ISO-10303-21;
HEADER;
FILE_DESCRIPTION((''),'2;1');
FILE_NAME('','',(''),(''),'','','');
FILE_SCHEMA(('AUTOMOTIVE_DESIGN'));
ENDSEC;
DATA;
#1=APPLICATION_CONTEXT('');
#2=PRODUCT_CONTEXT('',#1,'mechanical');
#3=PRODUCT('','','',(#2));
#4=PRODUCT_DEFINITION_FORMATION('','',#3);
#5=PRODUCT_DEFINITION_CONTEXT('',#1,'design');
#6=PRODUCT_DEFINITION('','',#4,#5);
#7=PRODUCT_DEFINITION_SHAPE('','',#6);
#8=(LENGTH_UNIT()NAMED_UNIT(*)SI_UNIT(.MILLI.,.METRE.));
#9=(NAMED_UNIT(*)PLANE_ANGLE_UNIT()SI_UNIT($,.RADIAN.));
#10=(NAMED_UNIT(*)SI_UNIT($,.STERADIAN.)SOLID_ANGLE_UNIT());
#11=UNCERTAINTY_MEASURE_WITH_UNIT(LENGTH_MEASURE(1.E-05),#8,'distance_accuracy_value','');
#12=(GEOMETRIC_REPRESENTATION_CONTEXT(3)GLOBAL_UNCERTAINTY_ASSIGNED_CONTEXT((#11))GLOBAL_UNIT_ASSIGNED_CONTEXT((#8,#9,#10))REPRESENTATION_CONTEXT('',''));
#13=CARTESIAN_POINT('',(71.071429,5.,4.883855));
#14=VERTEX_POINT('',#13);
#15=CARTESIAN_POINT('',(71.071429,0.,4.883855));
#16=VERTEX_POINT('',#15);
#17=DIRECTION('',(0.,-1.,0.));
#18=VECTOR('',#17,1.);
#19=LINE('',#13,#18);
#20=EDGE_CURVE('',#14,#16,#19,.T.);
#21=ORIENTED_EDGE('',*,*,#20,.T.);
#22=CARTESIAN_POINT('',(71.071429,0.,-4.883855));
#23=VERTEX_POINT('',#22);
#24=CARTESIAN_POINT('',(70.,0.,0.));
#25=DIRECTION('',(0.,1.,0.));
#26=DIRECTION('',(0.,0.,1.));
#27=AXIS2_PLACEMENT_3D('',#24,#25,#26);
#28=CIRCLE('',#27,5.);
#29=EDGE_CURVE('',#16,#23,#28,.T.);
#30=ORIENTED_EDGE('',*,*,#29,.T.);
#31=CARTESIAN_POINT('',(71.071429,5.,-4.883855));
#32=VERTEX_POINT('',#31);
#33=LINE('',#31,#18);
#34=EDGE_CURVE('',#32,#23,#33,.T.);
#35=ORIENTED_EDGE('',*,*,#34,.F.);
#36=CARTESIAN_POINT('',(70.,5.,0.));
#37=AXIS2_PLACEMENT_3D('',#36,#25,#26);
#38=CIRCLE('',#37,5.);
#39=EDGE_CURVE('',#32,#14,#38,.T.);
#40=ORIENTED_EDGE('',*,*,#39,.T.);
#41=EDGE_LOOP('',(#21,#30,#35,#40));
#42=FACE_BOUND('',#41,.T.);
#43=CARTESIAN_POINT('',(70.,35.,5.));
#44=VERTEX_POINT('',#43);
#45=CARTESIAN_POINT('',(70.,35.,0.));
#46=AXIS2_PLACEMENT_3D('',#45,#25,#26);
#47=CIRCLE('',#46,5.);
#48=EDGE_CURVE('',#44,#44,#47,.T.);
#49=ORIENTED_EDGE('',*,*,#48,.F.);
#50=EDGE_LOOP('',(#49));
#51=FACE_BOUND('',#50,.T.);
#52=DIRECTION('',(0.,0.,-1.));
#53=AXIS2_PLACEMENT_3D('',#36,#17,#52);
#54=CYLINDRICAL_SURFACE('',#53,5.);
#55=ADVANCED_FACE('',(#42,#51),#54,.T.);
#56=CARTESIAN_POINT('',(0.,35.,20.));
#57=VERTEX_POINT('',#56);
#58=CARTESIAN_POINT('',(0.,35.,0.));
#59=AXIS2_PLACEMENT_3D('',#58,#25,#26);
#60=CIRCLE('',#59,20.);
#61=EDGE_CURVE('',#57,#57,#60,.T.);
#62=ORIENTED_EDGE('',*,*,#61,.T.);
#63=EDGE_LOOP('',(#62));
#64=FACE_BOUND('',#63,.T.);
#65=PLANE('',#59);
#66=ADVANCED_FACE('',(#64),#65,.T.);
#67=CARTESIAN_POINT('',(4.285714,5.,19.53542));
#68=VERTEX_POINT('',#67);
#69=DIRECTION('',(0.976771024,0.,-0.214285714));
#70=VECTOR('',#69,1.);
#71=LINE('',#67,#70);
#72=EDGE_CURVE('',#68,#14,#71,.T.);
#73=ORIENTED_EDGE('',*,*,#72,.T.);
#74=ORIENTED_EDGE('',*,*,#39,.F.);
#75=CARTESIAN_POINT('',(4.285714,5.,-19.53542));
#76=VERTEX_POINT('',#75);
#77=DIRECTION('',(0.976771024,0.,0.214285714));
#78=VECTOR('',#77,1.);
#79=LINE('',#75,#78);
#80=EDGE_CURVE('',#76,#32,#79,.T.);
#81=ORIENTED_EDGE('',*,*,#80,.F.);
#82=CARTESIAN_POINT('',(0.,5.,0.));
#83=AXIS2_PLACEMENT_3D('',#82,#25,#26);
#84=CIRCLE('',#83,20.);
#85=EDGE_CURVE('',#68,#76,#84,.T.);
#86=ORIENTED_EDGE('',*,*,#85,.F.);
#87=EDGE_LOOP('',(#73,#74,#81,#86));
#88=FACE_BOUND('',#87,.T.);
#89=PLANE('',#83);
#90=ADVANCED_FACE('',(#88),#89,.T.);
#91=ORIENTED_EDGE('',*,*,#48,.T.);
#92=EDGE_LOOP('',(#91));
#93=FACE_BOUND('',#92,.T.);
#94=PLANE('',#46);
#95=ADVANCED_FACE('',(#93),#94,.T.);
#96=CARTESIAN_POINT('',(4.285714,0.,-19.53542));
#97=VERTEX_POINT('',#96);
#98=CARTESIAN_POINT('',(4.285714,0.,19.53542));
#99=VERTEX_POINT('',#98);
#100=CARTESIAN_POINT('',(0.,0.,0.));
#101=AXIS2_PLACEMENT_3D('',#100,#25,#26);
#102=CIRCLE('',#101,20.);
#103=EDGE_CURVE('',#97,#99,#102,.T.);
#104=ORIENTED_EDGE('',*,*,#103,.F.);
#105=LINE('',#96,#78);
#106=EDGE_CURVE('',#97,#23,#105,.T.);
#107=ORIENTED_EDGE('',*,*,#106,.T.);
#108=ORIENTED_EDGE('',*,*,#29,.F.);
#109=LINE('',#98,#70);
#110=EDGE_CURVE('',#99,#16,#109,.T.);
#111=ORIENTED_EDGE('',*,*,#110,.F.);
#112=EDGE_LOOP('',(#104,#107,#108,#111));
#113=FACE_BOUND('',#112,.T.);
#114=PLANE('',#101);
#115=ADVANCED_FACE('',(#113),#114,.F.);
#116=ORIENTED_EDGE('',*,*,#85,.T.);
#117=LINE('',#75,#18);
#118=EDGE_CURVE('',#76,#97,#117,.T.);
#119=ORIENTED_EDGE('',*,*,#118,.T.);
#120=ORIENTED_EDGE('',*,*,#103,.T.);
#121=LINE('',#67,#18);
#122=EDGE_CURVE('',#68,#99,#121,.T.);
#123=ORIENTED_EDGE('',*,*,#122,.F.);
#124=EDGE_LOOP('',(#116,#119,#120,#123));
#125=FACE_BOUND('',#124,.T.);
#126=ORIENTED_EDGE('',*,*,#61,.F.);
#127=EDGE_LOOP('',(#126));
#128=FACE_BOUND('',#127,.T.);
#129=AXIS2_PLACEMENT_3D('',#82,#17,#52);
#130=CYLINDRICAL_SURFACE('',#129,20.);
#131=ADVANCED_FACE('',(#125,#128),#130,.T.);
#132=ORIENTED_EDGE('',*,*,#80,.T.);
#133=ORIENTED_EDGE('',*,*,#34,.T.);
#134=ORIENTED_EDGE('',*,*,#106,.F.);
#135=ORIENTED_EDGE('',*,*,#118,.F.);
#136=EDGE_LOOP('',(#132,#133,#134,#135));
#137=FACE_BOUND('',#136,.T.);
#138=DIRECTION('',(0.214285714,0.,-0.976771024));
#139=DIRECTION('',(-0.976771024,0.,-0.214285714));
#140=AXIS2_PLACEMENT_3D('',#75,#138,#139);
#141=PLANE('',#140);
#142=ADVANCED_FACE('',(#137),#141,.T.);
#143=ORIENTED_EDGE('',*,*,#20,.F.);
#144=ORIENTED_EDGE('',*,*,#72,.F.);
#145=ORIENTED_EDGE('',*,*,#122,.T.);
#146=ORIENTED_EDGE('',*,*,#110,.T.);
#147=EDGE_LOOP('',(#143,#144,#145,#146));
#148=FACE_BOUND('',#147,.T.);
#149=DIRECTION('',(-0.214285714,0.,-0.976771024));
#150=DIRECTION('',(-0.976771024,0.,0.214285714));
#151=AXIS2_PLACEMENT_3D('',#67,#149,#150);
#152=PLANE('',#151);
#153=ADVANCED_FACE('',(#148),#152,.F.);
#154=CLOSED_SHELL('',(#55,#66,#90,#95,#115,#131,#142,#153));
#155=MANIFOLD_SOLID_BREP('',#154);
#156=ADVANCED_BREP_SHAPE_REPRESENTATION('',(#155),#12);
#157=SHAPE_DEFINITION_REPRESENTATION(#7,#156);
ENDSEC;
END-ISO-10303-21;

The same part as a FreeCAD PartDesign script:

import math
import FreeCAD as App
import Part
import Sketcher
from FreeCAD import Vector

doc = App.newDocument("Part")
body = doc.addObject("PartDesign::Body", "Body")

# Sketch on XZ plane
sketch1 = doc.addObject("Sketcher::SketchObject", "Sketch")
body.addObject(sketch1)
sketch1.AttachmentSupport = (doc.XZ_Plane, [""])
sketch1.MapMode = "FlatFace"
sketch1.addGeometry(Part.LineSegment(Vector(71.071429, -4.883855, 0), Vector(4.285714, -19.53542, 0)), False)
sketch1.addGeometry(Part.ArcOfCircle(Part.Circle(Vector(0, 0, 0), Vector(0, 0, 1), 20), math.radians(77.626376), math.radians(282.373625)), False)
sketch1.addGeometry(Part.LineSegment(Vector(4.285714, 19.535421, 0), Vector(71.071429, 4.883855, 0)), False)
sketch1.addGeometry(Part.ArcOfCircle(Part.Circle(Vector(70, 0, 0), Vector(0, 0, 1), 5), math.radians(-77.626375), math.radians(77.626375)), False)
sketch1.addConstraint(Sketcher.Constraint("Tangent", 0, 2, 1, 2))
sketch1.addConstraint(Sketcher.Constraint("Tangent", 1, 1, 2, 1))
sketch1.addConstraint(Sketcher.Constraint("Tangent", 2, 2, 3, 2))
sketch1.addConstraint(Sketcher.Constraint("Tangent", 3, 1, 0, 1))
sketch1.addConstraint(Sketcher.Constraint("Coincident", 1, 3, -1, 1))
sketch1.addConstraint(Sketcher.Constraint("PointOnObject", 3, 3, -1))
sketch1.addConstraint(Sketcher.Constraint("Radius", 1, 20.0))
sketch1.addConstraint(Sketcher.Constraint("Radius", 3, 5.0))
sketch1.addConstraint(Sketcher.Constraint("DistanceX", -1, 1, 3, 3, 70.0))
pad1 = doc.addObject("PartDesign::Pad", "Pad")
body.addObject(pad1)
pad1.Profile = sketch1
pad1.Length = 5
pad1.Reversed = True

# Sketch on XZ plane
sketch2 = doc.addObject("Sketcher::SketchObject", "Sketch001")
body.addObject(sketch2)
sketch2.AttachmentSupport = (doc.XZ_Plane, [""])
sketch2.MapMode = "FlatFace"
sketch2.AttachmentOffset = App.Placement(Vector(0, 0, -5), App.Rotation())
sketch2.addGeometry(Part.Circle(Vector(0, 0, 0), Vector(0, 0, 1), 20), False)
sketch2.addGeometry(Part.Circle(Vector(70, 0, 0), Vector(0, 0, 1), 5), False)
sketch2.addConstraint(Sketcher.Constraint("Coincident", 0, 3, -1, 1))
sketch2.addConstraint(Sketcher.Constraint("PointOnObject", 1, 3, -1))
sketch2.addConstraint(Sketcher.Constraint("Diameter", 0, 40.0))
sketch2.addConstraint(Sketcher.Constraint("Diameter", 1, 10.0))
sketch2.addConstraint(Sketcher.Constraint("DistanceX", -1, 1, 1, 3, 70.0))
pad2 = doc.addObject("PartDesign::Pad", "Pad001")
body.addObject(pad2)
pad2.Profile = sketch2
pad2.Length = 30
pad2.Reversed = True

doc.recompute()
